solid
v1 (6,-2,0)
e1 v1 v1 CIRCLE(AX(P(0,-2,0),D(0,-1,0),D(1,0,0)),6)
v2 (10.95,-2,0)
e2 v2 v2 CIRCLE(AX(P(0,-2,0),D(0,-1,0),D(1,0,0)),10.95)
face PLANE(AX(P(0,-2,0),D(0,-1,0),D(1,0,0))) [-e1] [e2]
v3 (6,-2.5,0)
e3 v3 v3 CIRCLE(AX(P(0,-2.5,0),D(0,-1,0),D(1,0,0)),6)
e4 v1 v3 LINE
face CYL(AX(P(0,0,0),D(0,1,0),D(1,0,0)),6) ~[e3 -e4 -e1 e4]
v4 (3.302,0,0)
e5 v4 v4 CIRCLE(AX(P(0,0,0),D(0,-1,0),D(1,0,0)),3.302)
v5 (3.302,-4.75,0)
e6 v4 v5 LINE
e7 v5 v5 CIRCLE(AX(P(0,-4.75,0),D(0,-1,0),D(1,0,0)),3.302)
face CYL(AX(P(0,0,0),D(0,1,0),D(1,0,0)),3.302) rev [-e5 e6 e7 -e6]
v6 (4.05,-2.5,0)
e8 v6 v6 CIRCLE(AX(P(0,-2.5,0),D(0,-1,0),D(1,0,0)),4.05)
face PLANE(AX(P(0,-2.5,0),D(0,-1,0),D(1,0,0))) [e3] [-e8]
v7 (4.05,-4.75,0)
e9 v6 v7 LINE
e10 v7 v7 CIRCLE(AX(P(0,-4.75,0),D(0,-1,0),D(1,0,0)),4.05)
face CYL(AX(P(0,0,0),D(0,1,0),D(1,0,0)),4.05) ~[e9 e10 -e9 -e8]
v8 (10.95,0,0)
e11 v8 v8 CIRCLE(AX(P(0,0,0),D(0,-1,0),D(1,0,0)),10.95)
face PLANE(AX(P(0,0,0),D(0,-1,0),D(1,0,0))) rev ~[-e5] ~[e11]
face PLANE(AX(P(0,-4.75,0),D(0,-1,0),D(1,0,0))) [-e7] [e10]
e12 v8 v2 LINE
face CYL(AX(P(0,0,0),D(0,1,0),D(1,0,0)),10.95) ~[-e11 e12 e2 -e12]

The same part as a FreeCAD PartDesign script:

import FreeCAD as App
import Part
import Sketcher

V = App.Vector

doc = App.newDocument("Part")
body = doc.addObject("PartDesign::Body", "Body")

# Sketch on XZ plane
sketch1 = doc.addObject("Sketcher::SketchObject", "Sketch")
body.addObject(sketch1)
sketch1.AttachmentSupport = (doc.XZ_Plane, [""])
sketch1.MapMode = "FlatFace"
sketch1.addGeometry(Part.Circle(V(0, 0, 0), V(0, 0, 1), 11), False)
sketch1.addGeometry(Part.Circle(V(0, 0, 0), V(0, 0, 1), 8), False)
sketch1.addConstraint(Sketcher.Constraint("Coincident", 0, 3, -1, 1))
sketch1.addConstraint(Sketcher.Constraint("Coincident", 1, 3, -1, 1))
sketch1.addConstraint(Sketcher.Constraint("Diameter", 0, 21.9))
sketch1.addConstraint(Sketcher.Constraint("Diameter", 1, 15.9))
pad1 = doc.addObject("PartDesign::Pad", "Pad")
body.addObject(pad1)
pad1.Profile = sketch1
pad1.Length = 2

# Sketch on XZ plane
sketch2 = doc.addObject("Sketcher::SketchObject", "Sketch001")
body.addObject(sketch2)
sketch2.AttachmentSupport = (doc.XZ_Plane, [""])
sketch2.MapMode = "FlatFace"
sketch2.addGeometry(Part.Circle(V(0, 0, 0), V(0, 0, 1), 8), False)
sketch2.addGeometry(Part.Circle(V(0, 0, 0), V(0, 0, 1), 6), False)
sketch2.addConstraint(Sketcher.Constraint("Coincident", 0, 3, -1, 1))
sketch2.addConstraint(Sketcher.Constraint("Coincident", 1, 3, -1, 1))
sketch2.addConstraint(Sketcher.Constraint("Diameter", 1, 12.0))
sketch2.addConstraint(Sketcher.Constraint("Diameter", 0, 15.9))
pad2 = doc.addObject("PartDesign::Pad", "Pad001")
body.addObject(pad2)
pad2.Profile = sketch2
pad2.Length = 2

# Sketch on XZ plane
sketch3 = doc.addObject("Sketcher::SketchObject", "Sketch002")
body.addObject(sketch3)
sketch3.AttachmentSupport = (doc.XZ_Plane, [""])
sketch3.MapMode = "FlatFace"
sketch3.addGeometry(Part.Circle(V(0, 0, 0), V(0, 0, 1), 6), False)
sketch3.addGeometry(Part.Circle(V(0, 0, 0), V(0, 0, 1), 4), False)
sketch3.addConstraint(Sketcher.Constraint("Coincident", 0, 3, -1, 1))
sketch3.addConstraint(Sketcher.Constraint("Coincident", 1, 3, -1, 1))
sketch3.addConstraint(Sketcher.Constraint("Diameter", 0, 12.0))
sketch3.addConstraint(Sketcher.Constraint("Diameter", 1, 8.1))
pad3 = doc.addObject("PartDesign::Pad", "Pad002")
body.addObject(pad3)
pad3.Profile = sketch3
pad3.Length = 2.5

# Sketch on XZ plane
sketch4 = doc.addObject("Sketcher::SketchObject", "Sketch003")
body.addObject(sketch4)
sketch4.AttachmentSupport = (doc.XZ_Plane, [""])
sketch4.MapMode = "FlatFace"
sketch4.addGeometry(Part.Circle(V(0, 0, 0), V(0, 0, 1), 4), False)
sketch4.addGeometry(Part.Circle(V(0, 0, 0), V(0, 0, 1), 3.3), False)
sketch4.addConstraint(Sketcher.Constraint("Coincident", 0, 3, -1, 1))
sketch4.addConstraint(Sketcher.Constraint("Coincident", 1, 3, -1, 1))
sketch4.addConstraint(Sketcher.Constraint("Diameter", 0, 8.1))
sketch4.addConstraint(Sketcher.Constraint("Diameter", 1, 6.604))
pad4 = doc.addObject("PartDesign::Pad", "Pad003")
body.addObject(pad4)
pad4.Profile = sketch4
pad4.Length = 4.75

doc.recompute()
